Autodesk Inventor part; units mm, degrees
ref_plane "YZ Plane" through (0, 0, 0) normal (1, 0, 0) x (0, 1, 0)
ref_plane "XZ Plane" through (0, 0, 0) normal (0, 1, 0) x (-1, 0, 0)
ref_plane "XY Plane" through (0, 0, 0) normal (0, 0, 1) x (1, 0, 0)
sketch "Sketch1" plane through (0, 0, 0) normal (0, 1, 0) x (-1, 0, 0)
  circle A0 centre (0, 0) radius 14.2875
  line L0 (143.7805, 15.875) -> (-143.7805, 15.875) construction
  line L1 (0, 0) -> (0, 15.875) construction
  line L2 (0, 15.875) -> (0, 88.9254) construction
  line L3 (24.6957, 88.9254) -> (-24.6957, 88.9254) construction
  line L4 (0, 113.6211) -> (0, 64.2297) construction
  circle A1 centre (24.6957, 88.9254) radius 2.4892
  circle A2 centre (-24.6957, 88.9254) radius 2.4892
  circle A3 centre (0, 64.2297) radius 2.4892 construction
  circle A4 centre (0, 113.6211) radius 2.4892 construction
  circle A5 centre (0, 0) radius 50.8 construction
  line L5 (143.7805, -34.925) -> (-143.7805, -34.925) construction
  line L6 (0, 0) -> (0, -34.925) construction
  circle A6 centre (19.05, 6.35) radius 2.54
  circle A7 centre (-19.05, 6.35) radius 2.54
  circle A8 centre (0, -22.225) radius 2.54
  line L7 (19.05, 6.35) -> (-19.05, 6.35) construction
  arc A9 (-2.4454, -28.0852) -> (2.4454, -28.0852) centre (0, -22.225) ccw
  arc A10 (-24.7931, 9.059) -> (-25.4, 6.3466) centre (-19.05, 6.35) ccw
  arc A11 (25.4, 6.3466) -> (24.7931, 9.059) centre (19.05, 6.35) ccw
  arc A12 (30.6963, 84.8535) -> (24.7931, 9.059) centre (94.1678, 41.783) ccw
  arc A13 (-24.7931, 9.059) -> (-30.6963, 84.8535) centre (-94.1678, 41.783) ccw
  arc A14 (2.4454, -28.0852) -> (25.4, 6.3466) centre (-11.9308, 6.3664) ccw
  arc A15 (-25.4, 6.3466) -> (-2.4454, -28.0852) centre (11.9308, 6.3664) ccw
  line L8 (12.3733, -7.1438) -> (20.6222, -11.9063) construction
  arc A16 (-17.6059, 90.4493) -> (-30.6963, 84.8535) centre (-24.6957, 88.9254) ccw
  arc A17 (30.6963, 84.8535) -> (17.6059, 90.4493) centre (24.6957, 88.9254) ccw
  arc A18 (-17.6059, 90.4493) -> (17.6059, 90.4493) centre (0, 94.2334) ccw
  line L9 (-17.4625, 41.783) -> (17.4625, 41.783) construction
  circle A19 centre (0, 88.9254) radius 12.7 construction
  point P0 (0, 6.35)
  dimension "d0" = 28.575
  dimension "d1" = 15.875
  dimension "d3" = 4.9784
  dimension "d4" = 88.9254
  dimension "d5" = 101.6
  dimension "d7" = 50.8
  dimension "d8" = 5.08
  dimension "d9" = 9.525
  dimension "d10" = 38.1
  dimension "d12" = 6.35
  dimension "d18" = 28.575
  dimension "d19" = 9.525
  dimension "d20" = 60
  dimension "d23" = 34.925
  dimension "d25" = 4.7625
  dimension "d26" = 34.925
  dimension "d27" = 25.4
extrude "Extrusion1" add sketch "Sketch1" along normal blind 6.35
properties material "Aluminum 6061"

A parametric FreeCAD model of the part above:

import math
import FreeCAD as App
import Part
import Sketcher

V = App.Vector
Q = App.Units.Quantity

doc = App.newDocument("Part")
body = doc.addObject("PartDesign::Body", "Body")

# Sketch on XZ plane
sketch1 = doc.addObject("Sketcher::SketchObject", "Sketch")
body.addObject(sketch1)
sketch1.AttachmentSupport = (doc.XZ_Plane, [""])
sketch1.MapMode = "FlatFace"
sketch1.addGeometry([
    Part.ArcOfCircle(Part.Circle(V(-11.9308, 6.3664, 0), V(0, 0, 1), 37.330805), math.radians(-67.349864), math.radians(-0.030389)),  # 0
    Part.ArcOfCircle(Part.Circle(V(0, -22.225, 0), V(0, 0, 1), 6.349955), math.radians(-112.650266), math.radians(-67.349734)),  # 1
    Part.ArcOfCircle(Part.Circle(V(11.9308, 6.3664, 0), V(0, 0, 1), 37.33079), math.radians(-179.969611), math.radians(-112.650136)),  # 2
    Part.ArcOfCircle(Part.Circle(V(-19.051028, 6.350113, 0), V(0, 0, 1), 6.348973), math.radians(154.743881), math.radians(180.031705)),  # 3
    Part.ArcOfCircle(Part.Circle(V(-94.1678, 41.783, 0), V(0, 0, 1), 76.705275), math.radians(-25.253221), math.radians(34.160037)),  # 4
    Part.ArcOfCircle(Part.Circle(V(-24.6957, 88.9254, 0), V(0, 0, 1), 7.251729), math.radians(12.130736), math.radians(214.160115)),  # 5
    Part.ArcOfCircle(Part.Circle(V(0, 94.2334, 0), V(0, 0, 1), 18.007974), math.radians(-167.869755), math.radians(-12.130245)),  # 6
    Part.ArcOfCircle(Part.Circle(V(24.6957, 88.9254, 0), V(0, 0, 1), 7.251726), math.radians(-34.160115), math.radians(167.869264)),  # 7
    Part.ArcOfCircle(Part.Circle(V(94.1678, 41.783, 0), V(0, 0, 1), 76.70534), math.radians(145.839963), math.radians(205.253221)),  # 8
    Part.ArcOfCircle(Part.Circle(V(19.049022, 6.349664, 0), V(0, 0, 1), 6.350979), math.radians(-0.027646), math.radians(25.252059)),  # 9
    Part.Circle(V(0, -22.225, 0), V(0, 0, 1), 2.54),  # 10
    Part.Circle(V(0, 0, 0), V(0, 0, 1), 14.2875),  # 11
    Part.Circle(V(19.05, 6.35, 0), V(0, 0, 1), 2.54),  # 12
    Part.Circle(V(-19.05, 6.35, 0), V(0, 0, 1), 2.54),  # 13
    Part.Circle(V(24.6957, 88.9254, 0), V(0, 0, 1), 2.4892),  # 14
    Part.Circle(V(-24.6957, 88.9254, 0), V(0, 0, 1), 2.4892),  # 15
], False)
sketch1.addConstraint([
    Sketcher.Constraint("Tangent", 0, 1, 1, 2),
    Sketcher.Constraint("Tangent", 1, 1, 2, 2),
    Sketcher.Constraint("Tangent", 2, 1, 3, 2),
    Sketcher.Constraint("Tangent", 3, 1, 4, 1),
    Sketcher.Constraint("Tangent", 4, 2, 5, 2),
    Sketcher.Constraint("Tangent", 5, 1, 6, 1),
    Sketcher.Constraint("Tangent", 6, 2, 7, 2),
    Sketcher.Constraint("Tangent", 7, 1, 8, 1),
    Sketcher.Constraint("Tangent", 8, 2, 9, 2),
    Sketcher.Constraint("Tangent", 9, 1, 0, 2),
    Sketcher.Constraint("Coincident", 11, 3, -1, 1),
    Sketcher.Constraint("Coincident", 10, 3, 1, 3),
    Sketcher.Constraint("Coincident", 14, 3, 7, 3),
    Sketcher.Constraint("Coincident", 15, 3, 5, 3),
    Sketcher.Constraint("Equal", 0, 2),
    Sketcher.Constraint("Equal", 5, 7),
    Sketcher.Constraint("Equal", 4, 8),
    Sketcher.Constraint("Equal", 10, 12),
    Sketcher.Constraint("Equal", 12, 13),
    Sketcher.Constraint("Equal", 14, 15),
    Sketcher.Constraint("Symmetric", 0, 3, 2, 3, -2),
    Sketcher.Constraint("Symmetric", 5, 3, 7, 3, -2),
    Sketcher.Constraint("Symmetric", 12, 3, 13, 3, -2),
    Sketcher.Constraint("Symmetric", 3, 1, 8, 2, -2),
    Sketcher.Constraint("Horizontal", 3, 3, 12, 3),
    Sketcher.Constraint("Diameter", 10, Q("0.2 in")),
    Sketcher.Constraint("Radius", 1, Q("0.25 in")),
    Sketcher.Constraint("Diameter", 11, Q("1.125 in")),
    Sketcher.Constraint("Diameter", 14, Q("0.196 in")),
    Sketcher.Constraint("DistanceX", 2, 1, -1, 1, Q("1 in")),
    Sketcher.Constraint("DistanceX", 3, 3, 9, 3, Q("1.5 in")),
    Sketcher.Constraint("DistanceY", -1, 1, 3, 3, Q("0.25 in")),
    Sketcher.Constraint("DistanceX", 2, 1, 13, 3, Q("0.25 in")),
    Sketcher.Constraint("DistanceY", -1, 1, 5, 3, Q("3.501 in")),
    Sketcher.Constraint("DistanceY", 1, 3, 3, 3, Q("1.125 in")),
    Sketcher.Constraint("Radius", 4, Q("3.0199 in")),
    Sketcher.Constraint("Radius", 5, Q("0.2855 in")),
    Sketcher.Constraint("Radius", 0, Q("37.3308 mm")),
    Sketcher.Constraint("Radius", 6, Q("18.008 mm")),
    Sketcher.Constraint("DistanceY", 1, 3, 4, 3, Q("2.52 in")),
])
pad1 = doc.addObject("PartDesign::Pad", "Pad")
body.addObject(pad1)
pad1.Profile = sketch1
pad1.Length = Q("0.25 in")
pad1.Reversed = True

doc.recompute()
